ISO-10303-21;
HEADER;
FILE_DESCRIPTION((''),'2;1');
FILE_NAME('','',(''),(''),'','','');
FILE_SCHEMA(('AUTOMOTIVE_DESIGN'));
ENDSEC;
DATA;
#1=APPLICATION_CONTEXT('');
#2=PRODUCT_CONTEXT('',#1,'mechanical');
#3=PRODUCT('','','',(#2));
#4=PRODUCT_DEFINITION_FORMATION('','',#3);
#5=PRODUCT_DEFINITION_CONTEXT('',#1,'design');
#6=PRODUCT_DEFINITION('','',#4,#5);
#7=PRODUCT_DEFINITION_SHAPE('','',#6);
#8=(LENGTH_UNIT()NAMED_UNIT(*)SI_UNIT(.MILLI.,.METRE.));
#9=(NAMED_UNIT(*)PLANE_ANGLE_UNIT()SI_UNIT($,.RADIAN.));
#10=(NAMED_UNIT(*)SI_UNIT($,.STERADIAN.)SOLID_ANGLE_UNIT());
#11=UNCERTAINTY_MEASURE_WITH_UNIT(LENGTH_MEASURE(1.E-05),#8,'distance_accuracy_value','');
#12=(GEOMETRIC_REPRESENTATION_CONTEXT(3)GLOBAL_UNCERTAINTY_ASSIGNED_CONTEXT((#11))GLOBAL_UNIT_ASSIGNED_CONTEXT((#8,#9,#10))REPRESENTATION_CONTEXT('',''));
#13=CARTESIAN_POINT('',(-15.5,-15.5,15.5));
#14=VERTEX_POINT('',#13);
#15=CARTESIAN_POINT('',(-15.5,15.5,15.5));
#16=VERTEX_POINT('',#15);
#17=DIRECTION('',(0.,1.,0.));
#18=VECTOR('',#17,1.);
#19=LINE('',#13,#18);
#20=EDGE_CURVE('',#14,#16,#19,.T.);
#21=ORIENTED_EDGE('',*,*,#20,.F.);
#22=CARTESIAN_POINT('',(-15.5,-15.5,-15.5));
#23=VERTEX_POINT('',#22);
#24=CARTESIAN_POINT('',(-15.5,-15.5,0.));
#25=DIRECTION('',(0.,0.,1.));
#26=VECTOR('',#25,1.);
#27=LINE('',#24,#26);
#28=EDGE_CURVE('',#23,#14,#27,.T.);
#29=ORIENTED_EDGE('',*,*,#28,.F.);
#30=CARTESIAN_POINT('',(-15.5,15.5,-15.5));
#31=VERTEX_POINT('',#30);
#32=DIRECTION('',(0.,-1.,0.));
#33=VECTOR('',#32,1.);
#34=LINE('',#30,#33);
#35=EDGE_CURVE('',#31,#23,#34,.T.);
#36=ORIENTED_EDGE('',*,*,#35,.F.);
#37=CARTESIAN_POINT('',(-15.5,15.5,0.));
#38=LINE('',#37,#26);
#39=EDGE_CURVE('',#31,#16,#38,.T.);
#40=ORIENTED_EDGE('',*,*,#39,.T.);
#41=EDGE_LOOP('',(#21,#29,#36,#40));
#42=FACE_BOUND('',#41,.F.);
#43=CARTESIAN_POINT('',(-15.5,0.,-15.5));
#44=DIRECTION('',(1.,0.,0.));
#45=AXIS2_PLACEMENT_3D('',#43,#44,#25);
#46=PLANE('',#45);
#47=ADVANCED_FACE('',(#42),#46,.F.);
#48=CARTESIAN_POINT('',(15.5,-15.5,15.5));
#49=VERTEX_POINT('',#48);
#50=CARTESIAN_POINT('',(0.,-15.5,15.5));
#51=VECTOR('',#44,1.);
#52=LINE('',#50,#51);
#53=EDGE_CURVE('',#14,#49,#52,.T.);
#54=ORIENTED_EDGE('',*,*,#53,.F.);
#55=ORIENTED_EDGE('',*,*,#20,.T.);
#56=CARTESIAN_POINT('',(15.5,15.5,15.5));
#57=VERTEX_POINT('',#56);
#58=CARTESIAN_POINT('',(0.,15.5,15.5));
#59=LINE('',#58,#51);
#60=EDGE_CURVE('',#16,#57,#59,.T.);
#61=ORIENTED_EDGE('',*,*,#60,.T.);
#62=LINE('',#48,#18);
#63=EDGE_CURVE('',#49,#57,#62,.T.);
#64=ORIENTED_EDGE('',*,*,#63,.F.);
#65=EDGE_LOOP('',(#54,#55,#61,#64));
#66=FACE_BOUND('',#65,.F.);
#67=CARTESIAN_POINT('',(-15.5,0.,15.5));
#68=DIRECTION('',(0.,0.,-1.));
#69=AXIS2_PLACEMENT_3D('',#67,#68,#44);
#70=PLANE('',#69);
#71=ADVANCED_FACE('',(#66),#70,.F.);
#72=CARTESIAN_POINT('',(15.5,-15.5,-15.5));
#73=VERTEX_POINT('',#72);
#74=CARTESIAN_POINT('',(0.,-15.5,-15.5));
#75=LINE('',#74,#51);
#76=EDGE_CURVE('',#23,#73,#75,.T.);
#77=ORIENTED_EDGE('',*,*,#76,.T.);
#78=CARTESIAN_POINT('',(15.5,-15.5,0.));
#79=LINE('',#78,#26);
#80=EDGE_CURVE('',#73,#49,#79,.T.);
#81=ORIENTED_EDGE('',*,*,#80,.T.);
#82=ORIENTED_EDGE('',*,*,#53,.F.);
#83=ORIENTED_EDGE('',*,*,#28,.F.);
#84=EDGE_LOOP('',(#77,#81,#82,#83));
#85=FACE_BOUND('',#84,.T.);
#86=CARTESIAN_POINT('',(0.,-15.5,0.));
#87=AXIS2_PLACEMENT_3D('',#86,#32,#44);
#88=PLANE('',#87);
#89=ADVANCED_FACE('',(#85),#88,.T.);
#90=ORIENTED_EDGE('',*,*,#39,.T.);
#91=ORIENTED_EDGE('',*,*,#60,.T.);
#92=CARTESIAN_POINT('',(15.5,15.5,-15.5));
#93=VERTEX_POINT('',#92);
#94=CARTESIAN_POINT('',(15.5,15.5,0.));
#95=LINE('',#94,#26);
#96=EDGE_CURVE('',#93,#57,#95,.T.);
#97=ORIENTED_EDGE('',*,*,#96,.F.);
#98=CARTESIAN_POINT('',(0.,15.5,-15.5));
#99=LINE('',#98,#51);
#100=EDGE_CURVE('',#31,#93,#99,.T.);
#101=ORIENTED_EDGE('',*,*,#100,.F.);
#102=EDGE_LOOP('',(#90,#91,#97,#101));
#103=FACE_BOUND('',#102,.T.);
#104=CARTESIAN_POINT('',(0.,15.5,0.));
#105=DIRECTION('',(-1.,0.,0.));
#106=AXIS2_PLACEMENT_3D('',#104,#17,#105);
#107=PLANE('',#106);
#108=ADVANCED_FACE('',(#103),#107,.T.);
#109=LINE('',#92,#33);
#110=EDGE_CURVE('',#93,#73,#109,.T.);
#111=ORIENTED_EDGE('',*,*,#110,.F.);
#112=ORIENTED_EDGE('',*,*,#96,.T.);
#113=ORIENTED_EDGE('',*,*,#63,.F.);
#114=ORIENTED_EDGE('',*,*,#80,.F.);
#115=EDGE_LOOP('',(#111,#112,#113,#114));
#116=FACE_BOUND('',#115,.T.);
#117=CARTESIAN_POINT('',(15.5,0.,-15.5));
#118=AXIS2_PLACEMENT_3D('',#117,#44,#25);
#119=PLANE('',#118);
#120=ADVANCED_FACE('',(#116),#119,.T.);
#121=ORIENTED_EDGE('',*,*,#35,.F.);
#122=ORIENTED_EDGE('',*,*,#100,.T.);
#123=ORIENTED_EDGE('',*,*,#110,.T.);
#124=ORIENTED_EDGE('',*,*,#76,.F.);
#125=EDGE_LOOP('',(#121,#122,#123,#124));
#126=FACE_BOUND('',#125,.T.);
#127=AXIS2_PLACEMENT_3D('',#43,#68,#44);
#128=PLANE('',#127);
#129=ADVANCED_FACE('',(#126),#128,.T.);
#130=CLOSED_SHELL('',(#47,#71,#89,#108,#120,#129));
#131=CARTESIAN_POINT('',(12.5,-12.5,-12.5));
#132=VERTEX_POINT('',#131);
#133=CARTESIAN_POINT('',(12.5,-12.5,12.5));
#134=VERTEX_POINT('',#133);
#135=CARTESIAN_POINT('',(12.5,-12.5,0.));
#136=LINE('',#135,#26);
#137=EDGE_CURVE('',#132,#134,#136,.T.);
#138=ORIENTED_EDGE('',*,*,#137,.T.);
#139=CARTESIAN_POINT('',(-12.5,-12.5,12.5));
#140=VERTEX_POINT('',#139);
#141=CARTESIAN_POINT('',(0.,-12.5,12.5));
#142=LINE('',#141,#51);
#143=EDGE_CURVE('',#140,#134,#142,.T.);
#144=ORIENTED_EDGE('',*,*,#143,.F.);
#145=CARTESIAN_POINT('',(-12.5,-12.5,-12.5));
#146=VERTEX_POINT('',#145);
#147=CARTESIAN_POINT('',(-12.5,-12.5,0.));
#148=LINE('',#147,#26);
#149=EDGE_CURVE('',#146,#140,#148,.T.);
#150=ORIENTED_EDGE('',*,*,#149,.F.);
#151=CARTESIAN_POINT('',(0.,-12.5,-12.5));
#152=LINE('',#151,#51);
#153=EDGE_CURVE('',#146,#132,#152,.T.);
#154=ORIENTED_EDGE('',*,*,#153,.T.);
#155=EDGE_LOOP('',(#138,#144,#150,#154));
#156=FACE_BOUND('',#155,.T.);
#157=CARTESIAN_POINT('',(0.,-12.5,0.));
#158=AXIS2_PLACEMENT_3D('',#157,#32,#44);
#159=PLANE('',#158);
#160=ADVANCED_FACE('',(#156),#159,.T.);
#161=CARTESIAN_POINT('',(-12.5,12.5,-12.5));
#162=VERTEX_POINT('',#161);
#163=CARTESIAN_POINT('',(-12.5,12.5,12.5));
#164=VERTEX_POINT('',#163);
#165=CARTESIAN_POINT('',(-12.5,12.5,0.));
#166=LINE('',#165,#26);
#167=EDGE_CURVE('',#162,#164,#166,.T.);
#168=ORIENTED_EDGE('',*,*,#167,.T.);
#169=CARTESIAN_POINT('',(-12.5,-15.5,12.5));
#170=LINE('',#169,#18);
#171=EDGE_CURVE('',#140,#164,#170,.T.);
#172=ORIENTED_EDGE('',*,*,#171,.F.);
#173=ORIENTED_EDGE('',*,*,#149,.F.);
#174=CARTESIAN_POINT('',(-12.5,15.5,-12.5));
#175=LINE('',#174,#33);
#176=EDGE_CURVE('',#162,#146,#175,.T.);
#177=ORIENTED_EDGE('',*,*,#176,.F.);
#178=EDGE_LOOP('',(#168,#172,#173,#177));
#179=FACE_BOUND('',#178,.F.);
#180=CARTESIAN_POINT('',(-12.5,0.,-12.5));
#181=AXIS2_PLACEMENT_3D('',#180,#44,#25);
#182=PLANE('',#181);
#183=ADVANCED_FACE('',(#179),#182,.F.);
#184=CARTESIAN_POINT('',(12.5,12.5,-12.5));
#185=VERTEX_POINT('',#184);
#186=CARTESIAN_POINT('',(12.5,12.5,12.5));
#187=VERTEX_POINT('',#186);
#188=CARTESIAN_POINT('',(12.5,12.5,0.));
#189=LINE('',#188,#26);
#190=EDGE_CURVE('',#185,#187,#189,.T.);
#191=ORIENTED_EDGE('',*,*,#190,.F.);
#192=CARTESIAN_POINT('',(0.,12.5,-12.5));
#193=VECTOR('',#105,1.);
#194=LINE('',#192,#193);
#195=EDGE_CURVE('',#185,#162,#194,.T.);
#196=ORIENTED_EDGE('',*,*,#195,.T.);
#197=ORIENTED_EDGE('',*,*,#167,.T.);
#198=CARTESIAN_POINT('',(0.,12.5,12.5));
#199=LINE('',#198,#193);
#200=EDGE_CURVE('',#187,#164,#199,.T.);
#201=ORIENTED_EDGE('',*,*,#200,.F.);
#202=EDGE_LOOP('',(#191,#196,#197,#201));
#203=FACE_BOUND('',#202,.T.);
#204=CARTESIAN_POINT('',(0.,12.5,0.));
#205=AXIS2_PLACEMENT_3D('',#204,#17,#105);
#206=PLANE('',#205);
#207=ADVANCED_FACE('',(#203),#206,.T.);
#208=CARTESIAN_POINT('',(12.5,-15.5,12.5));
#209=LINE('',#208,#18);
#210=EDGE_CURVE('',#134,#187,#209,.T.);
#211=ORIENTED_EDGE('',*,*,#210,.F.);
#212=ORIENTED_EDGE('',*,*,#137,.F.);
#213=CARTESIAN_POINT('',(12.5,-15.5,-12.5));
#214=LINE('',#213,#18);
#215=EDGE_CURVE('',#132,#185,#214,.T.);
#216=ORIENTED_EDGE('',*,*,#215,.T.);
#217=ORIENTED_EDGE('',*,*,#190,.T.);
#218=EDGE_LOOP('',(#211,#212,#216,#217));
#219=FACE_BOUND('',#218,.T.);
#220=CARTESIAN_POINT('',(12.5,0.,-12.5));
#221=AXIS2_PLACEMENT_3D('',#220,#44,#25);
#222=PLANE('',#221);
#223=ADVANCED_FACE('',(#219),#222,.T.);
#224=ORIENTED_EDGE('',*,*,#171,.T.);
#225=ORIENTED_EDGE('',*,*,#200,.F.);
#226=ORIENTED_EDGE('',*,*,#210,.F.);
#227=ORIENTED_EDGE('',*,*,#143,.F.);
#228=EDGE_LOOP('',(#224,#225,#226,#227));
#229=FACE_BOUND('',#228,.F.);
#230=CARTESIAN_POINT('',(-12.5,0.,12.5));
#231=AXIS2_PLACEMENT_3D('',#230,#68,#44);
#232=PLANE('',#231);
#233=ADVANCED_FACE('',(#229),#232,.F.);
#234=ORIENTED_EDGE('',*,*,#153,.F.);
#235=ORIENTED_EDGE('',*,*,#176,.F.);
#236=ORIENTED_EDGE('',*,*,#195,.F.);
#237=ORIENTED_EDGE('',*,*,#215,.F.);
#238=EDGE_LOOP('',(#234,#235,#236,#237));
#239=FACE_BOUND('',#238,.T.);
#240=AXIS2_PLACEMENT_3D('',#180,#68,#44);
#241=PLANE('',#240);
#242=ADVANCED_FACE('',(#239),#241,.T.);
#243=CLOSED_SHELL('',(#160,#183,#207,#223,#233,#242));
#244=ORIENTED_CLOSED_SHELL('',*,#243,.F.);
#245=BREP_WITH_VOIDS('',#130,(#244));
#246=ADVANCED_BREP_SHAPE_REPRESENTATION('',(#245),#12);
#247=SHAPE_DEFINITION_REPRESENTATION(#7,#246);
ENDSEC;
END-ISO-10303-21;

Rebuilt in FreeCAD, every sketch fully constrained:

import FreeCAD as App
import Part
import Sketcher
from FreeCAD import Vector

doc = App.newDocument("Part")
body = doc.addObject("PartDesign::Body", "Body")

sketch1 = body.newObject("Sketcher::SketchObject", "Sketch")
sketch1.AttachmentSupport = (doc.getObject("XZ_Plane"), [""])
sketch1.MapMode = "FlatFace"
sketch1.addGeometry([
    Part.LineSegment(Vector(-16, 16, 0), Vector(-16, -16, 0)),
    Part.LineSegment(Vector(-16, -16, 0), Vector(16, -16, 0)),
    Part.LineSegment(Vector(16, -16, 0), Vector(16, 16, 0)),
    Part.LineSegment(Vector(16, 16, 0), Vector(-16, 16, 0)),
    Part.LineSegment(Vector(12, -12, 0), Vector(-12, -12, 0)),
    Part.LineSegment(Vector(-12, -12, 0), Vector(-12, 12, 0)),
    Part.LineSegment(Vector(-12, 12, 0), Vector(12, 12, 0)),
    Part.LineSegment(Vector(12, 12, 0), Vector(12, -12, 0)),
], False)
sketch1.addConstraint([
    Sketcher.Constraint("Coincident", 0, 2, 1, 1),
    Sketcher.Constraint("Coincident", 1, 2, 2, 1),
    Sketcher.Constraint("Coincident", 2, 2, 3, 1),
    Sketcher.Constraint("Coincident", 3, 2, 0, 1),
    Sketcher.Constraint("Coincident", 4, 2, 5, 1),
    Sketcher.Constraint("Coincident", 5, 2, 6, 1),
    Sketcher.Constraint("Coincident", 6, 2, 7, 1),
    Sketcher.Constraint("Coincident", 7, 2, 4, 1),
    Sketcher.Constraint("Vertical", 0),
    Sketcher.Constraint("Horizontal", 1),
    Sketcher.Constraint("Vertical", 2),
    Sketcher.Constraint("Horizontal", 3),
    Sketcher.Constraint("Horizontal", 4),
    Sketcher.Constraint("Vertical", 5),
    Sketcher.Constraint("Horizontal", 6),
    Sketcher.Constraint("Vertical", 7),
    Sketcher.Constraint("Symmetric", 0, 2, 2, 2, -1, 1),
    Sketcher.Constraint("Symmetric", 4, 2, 6, 2, -1, 1),
    Sketcher.Constraint("Equal", 3, 0),
    Sketcher.Constraint("Equal", 6, 5),
    Sketcher.Constraint("DistanceX", 1, 1, 1, 2, 31.0),
    Sketcher.Constraint("DistanceX", 4, 2, 4, 1, 25.0),
])
pad1 = body.newObject("PartDesign::Pad", "Pad")
pad1.Profile = sketch1
pad1.Length = 31
pad1.Midplane = True

sketch2 = body.newObject("Sketcher::SketchObject", "Sketch001")
sketch2.AttachmentSupport = (doc.getObject("XZ_Plane"), [""])
sketch2.MapMode = "FlatFace"
sketch2.AttachmentOffset = App.Placement(Vector(0, 0, 15.5), App.Rotation())
sketch2.addGeometry([
    Part.LineSegment(Vector(-12, 12, 0), Vector(-12, -12, 0)),
    Part.LineSegment(Vector(-12, -12, 0), Vector(12, -12, 0)),
    Part.LineSegment(Vector(12, -12, 0), Vector(12, 12, 0)),
    Part.LineSegment(Vector(12, 12, 0), Vector(-12, 12, 0)),
], False)
sketch2.addConstraint([
    Sketcher.Constraint("Coincident", 0, 2, 1, 1),
    Sketcher.Constraint("Coincident", 1, 2, 2, 1),
    Sketcher.Constraint("Coincident", 2, 2, 3, 1),
    Sketcher.Constraint("Coincident", 3, 2, 0, 1),
    Sketcher.Constraint("Vertical", 0),
    Sketcher.Constraint("Horizontal", 1),
    Sketcher.Constraint("Vertical", 2),
    Sketcher.Constraint("Horizontal", 3),
    Sketcher.Constraint("Symmetric", 0, 2, 2, 2, -1, 1),
    Sketcher.Constraint("Equal", 3, 0),
    Sketcher.Constraint("DistanceX", 1, 1, 1, 2, 25.0),
])
pad2 = body.newObject("PartDesign::Pad", "Pad001")
pad2.Profile = sketch2
pad2.Length = 3
pad2.Reversed = True

sketch3 = body.newObject("Sketcher::SketchObject", "Sketch002")
sketch3.AttachmentSupport = (doc.getObject("XZ_Plane"), [""])
sketch3.MapMode = "FlatFace"
sketch3.AttachmentOffset = App.Placement(Vector(0, 0, -15.5), App.Rotation())
sketch3.addGeometry([
    Part.LineSegment(Vector(12, 12, 0), Vector(12, -12, 0)),
    Part.LineSegment(Vector(12, -12, 0), Vector(-12, -12, 0)),
    Part.LineSegment(Vector(-12, -12, 0), Vector(-12, 12, 0)),
    Part.LineSegment(Vector(-12, 12, 0), Vector(12, 12, 0)),
], False)
sketch3.addConstraint([
    Sketcher.Constraint("Coincident", 0, 2, 1, 1),
    Sketcher.Constraint("Coincident", 1, 2, 2, 1),
    Sketcher.Constraint("Coincident", 2, 2, 3, 1),
    Sketcher.Constraint("Coincident", 3, 2, 0, 1),
    Sketcher.Constraint("Vertical", 0),
    Sketcher.Constraint("Horizontal", 1),
    Sketcher.Constraint("Vertical", 2),
    Sketcher.Constraint("Horizontal", 3),
    Sketcher.Constraint("Symmetric", 0, 2, 2, 2, -1, 1),
    Sketcher.Constraint("Equal", 3, 0),
    Sketcher.Constraint("DistanceX", 1, 2, 1, 1, 25.0),
])
pad3 = body.newObject("PartDesign::Pad", "Pad002")
pad3.Profile = sketch3
pad3.Length = 3

doc.recompute()
